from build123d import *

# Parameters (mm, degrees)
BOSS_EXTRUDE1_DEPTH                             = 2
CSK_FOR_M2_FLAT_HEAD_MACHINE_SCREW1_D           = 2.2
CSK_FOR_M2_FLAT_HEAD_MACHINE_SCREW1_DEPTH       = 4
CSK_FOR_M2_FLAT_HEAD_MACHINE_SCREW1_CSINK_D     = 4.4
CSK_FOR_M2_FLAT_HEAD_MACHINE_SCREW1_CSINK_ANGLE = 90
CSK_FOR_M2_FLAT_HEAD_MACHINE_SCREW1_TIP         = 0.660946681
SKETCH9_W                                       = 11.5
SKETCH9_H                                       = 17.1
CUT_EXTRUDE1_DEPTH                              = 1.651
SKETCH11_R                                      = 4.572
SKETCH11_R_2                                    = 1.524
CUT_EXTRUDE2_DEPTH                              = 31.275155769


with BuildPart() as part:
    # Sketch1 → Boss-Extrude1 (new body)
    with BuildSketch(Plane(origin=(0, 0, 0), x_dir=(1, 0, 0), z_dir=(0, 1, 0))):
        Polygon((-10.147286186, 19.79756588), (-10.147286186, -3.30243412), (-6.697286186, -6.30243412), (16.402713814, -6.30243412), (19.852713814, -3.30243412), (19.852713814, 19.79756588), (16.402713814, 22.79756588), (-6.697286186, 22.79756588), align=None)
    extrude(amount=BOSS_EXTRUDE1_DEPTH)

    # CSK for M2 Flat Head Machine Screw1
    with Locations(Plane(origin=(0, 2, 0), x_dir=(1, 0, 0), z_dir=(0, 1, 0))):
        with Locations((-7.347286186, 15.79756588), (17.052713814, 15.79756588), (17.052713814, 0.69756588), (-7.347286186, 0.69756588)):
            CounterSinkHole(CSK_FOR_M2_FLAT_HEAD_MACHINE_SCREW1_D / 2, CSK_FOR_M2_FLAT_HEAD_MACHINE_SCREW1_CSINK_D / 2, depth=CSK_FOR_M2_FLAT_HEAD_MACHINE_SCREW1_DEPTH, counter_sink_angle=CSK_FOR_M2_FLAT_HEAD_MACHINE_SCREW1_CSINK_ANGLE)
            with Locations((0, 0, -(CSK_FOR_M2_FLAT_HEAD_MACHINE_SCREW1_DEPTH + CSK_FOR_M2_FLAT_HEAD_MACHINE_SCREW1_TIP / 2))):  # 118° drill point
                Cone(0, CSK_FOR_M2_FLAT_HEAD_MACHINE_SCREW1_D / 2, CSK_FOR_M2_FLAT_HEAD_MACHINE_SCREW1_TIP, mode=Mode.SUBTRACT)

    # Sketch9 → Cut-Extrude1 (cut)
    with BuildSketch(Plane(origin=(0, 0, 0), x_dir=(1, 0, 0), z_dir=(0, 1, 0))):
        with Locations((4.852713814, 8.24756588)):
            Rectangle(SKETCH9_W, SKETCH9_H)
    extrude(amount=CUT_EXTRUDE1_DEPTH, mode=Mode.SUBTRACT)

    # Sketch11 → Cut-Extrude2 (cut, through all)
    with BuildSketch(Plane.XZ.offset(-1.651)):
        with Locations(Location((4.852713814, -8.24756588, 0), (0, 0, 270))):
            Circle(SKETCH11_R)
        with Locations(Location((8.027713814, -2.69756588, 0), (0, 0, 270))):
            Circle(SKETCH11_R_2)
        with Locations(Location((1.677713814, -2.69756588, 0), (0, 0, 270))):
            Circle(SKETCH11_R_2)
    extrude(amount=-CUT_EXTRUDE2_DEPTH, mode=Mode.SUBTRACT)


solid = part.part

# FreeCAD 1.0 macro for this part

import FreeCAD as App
import Part
import Sketcher
from FreeCAD import Vector

doc = App.newDocument("Part")
params = doc.addObject("Spreadsheet::Sheet", "Params")
for row, (alias, value) in enumerate([
    ("sketch1_width", "23.1 mm"),
    ("pad1_length", "2 mm"),
    ("sketch2_diameter", "2.2 mm"),
    ("hole_diameter", "2.2 mm"),
    ("hole_depth", "4 mm"),
    ("hole_csink_diameter", "4.4 mm"),
    ("sketch3_width", "11.5 mm"),
    ("sketch3_height", "17.1 mm"),
    ("pocket1_length", "1.651 mm"),
], start=1):
    params.set(f"A{row}", alias)
    params.set(f"B{row}", "=" + value)
    params.setAlias(f"B{row}", alias)

body = doc.addObject("PartDesign::Body", "Body")

sketch1 = body.newObject("Sketcher::SketchObject", "Sketch")
sketch1.AttachmentSupport = (doc.getObject("XZ_Plane"), [""])
sketch1.MapMode = "FlatFace"
sketch1.addGeometry(Part.LineSegment(Vector(-10.1, -19.8, 0), Vector(-10.1, 3.3, 0)), False)
sketch1.addGeometry(Part.LineSegment(Vector(-10.1, 3.3, 0), Vector(-6.7, 6.3, 0)), False)
sketch1.addGeometry(Part.LineSegment(Vector(-6.7, 6.3, 0), Vector(16.4, 6.3, 0)), False)
sketch1.addGeometry(Part.LineSegment(Vector(16.4, 6.3, 0), Vector(19.9, 3.3, 0)), False)
sketch1.addGeometry(Part.LineSegment(Vector(19.9, 3.3, 0), Vector(19.9, -19.8, 0)), False)
sketch1.addGeometry(Part.LineSegment(Vector(19.9, -19.8, 0), Vector(16.4, -22.8, 0)), False)
sketch1.addGeometry(Part.LineSegment(Vector(16.4, -22.8, 0), Vector(-6.7, -22.8, 0)), False)
sketch1.addGeometry(Part.LineSegment(Vector(-6.7, -22.8, 0), Vector(-10.1, -19.8, 0)), False)
sketch1.addConstraint(Sketcher.Constraint("Coincident", 0, 2, 1, 1))
sketch1.addConstraint(Sketcher.Constraint("Coincident", 1, 2, 2, 1))
sketch1.addConstraint(Sketcher.Constraint("Coincident", 2, 2, 3, 1))
sketch1.addConstraint(Sketcher.Constraint("Coincident", 3, 2, 4, 1))
sketch1.addConstraint(Sketcher.Constraint("Coincident", 4, 2, 5, 1))
sketch1.addConstraint(Sketcher.Constraint("Coincident", 5, 2, 6, 1))
sketch1.addConstraint(Sketcher.Constraint("Coincident", 6, 2, 7, 1))
sketch1.addConstraint(Sketcher.Constraint("Coincident", 7, 2, 0, 1))
sketch1.addConstraint(Sketcher.Constraint("Vertical", 0))
sketch1.addConstraint(Sketcher.Constraint("Horizontal", 2))
sketch1.addConstraint(Sketcher.Constraint("Vertical", 4))
sketch1.addConstraint(Sketcher.Constraint("Horizontal", 6))
sketch1.addConstraint(Sketcher.Constraint("Parallel", 1, 5))
sketch1.addConstraint(Sketcher.Constraint("Parallel", 3, 7))
sketch1.addConstraint(Sketcher.Constraint("Horizontal", 0, 2, 3, 2))
sketch1.addConstraint(Sketcher.Constraint("Horizontal", 4, 2, 7, 2))
sketch1.addConstraint(Sketcher.Constraint("Vertical", 2, 2, 5, 2))
sketch1.addConstraint(Sketcher.Constraint("Vertical", 1, 2, 6, 2))
sketch1.addConstraint(Sketcher.Constraint("Equal", 6, 0))
sketch1.addConstraint(Sketcher.Constraint("DistanceX", 2, 1, 2, 2, 23.1))
sketch1.addConstraint(Sketcher.Constraint("DistanceY", 0, 2, 1, 2, 3.0))
sketch1.addConstraint(Sketcher.Constraint("DistanceX", 0, 2, 3, 2, 30.0))
sketch1.addConstraint(Sketcher.Constraint("DistanceX", 0, 2, -1, 1, 10.147286))
sketch1.addConstraint(Sketcher.Constraint("DistanceY", -1, 1, 0, 2, 3.302434))
sketch1.setExpression("Constraints[19]", "Params.sketch1_width")
pad1 = body.newObject("PartDesign::Pad", "Pad")
pad1.Profile = sketch1
pad1.setExpression("Length", "Params.pad1_length")
pad1.Reversed = True

sketch2 = body.newObject("Sketcher::SketchObject", "Sketch001")
sketch2.AttachmentSupport = (doc.getObject("XZ_Plane"), [""])
sketch2.MapMode = "FlatFace"
sketch2.AttachmentOffset = App.Placement(Vector(0, 0, -2), App.Rotation())
sketch2.addGeometry(Part.Circle(Vector(-7.3, -15.8, 0), Vector(0, 0, 1), 1.1), False)
sketch2.addGeometry(Part.Circle(Vector(17.1, -15.8, 0), Vector(0, 0, 1), 1.1), False)
sketch2.addGeometry(Part.Circle(Vector(17.1, -0.7, 0), Vector(0, 0, 1), 1.1), False)
sketch2.addGeometry(Part.Circle(Vector(-7.3, -0.7, 0), Vector(0, 0, 1), 1.1), False)
sketch2.addConstraint(Sketcher.Constraint("Equal", 0, 1))
sketch2.addConstraint(Sketcher.Constraint("Equal", 1, 2))
sketch2.addConstraint(Sketcher.Constraint("Equal", 2, 3))
sketch2.addConstraint(Sketcher.Constraint("Horizontal", 0, 3, 1, 3))
sketch2.addConstraint(Sketcher.Constraint("Horizontal", 2, 3, 3, 3))
sketch2.addConstraint(Sketcher.Constraint("Vertical", 1, 3, 2, 3))
sketch2.addConstraint(Sketcher.Constraint("Vertical", 0, 3, 3, 3))
sketch2.addConstraint(Sketcher.Constraint("Diameter", 0, 2.2))
sketch2.addConstraint(Sketcher.Constraint("DistanceX", 0, 3, 1, 3, 24.4))
sketch2.addConstraint(Sketcher.Constraint("DistanceY", 1, 3, 2, 3, 15.1))
sketch2.addConstraint(Sketcher.Constraint("DistanceX", 0, 3, -1, 1, 7.347286))
sketch2.addConstraint(Sketcher.Constraint("DistanceY", 0, 3, -1, 1, 15.797566))
sketch2.setExpression("Constraints[7]", "Params.sketch2_diameter")
doc.recompute()
hole = body.newObject("PartDesign::Hole", "Hole")
hole.Profile = sketch2
hole.ThreadType = "None"
hole.setExpression("Diameter", "Params.hole_diameter")
hole.DepthType = "Dimension"
hole.setExpression("Depth", "Params.hole_depth")
hole.DrillPoint = "Angled"
hole.DrillPointAngle = 118
hole.HoleCutType = "Countersink"
hole.setExpression("HoleCutDiameter", "Params.hole_csink_diameter")
hole.HoleCutCountersinkAngle = 90
hole.Reversed = True

sketch3 = body.newObject("Sketcher::SketchObject", "Sketch002")
sketch3.AttachmentSupport = (doc.getObject("XZ_Plane"), [""])
sketch3.MapMode = "FlatFace"
sketch3.addGeometry(Part.LineSegment(Vector(-1, -17, 0), Vector(-1, 0, 0)), False)
sketch3.addGeometry(Part.LineSegment(Vector(-1, 0, 0), Vector(11, 0, 0)), False)
sketch3.addGeometry(Part.LineSegment(Vector(11, 0, 0), Vector(11, -17, 0)), False)
sketch3.addGeometry(Part.LineSegment(Vector(11, -17, 0), Vector(-1, -17, 0)), False)
sketch3.addConstraint(Sketcher.Constraint("Coincident", 0, 2, 1, 1))
sketch3.addConstraint(Sketcher.Constraint("Coincident", 1, 2, 2, 1))
sketch3.addConstraint(Sketcher.Constraint("Coincident", 2, 2, 3, 1))
sketch3.addConstraint(Sketcher.Constraint("Coincident", 3, 2, 0, 1))
sketch3.addConstraint(Sketcher.Constraint("Vertical", 0))
sketch3.addConstraint(Sketcher.Constraint("Horizontal", 1))
sketch3.addConstraint(Sketcher.Constraint("Vertical", 2))
sketch3.addConstraint(Sketcher.Constraint("Horizontal", 3))
sketch3.addConstraint(Sketcher.Constraint("DistanceX", 1, 1, 1, 2, 11.5))
sketch3.addConstraint(Sketcher.Constraint("DistanceY", 0, 1, 0, 2, 17.1))
sketch3.addConstraint(Sketcher.Constraint("DistanceX", 0, 2, -1, 1, 0.897286))
sketch3.addConstraint(Sketcher.Constraint("DistanceY", -1, 1, 0, 2, 0.302434))
sketch3.setExpression("Constraints[8]", "Params.sketch3_width")
sketch3.setExpression("Constraints[9]", "Params.sketch3_height")
pocket1 = body.newObject("PartDesign::Pocket", "Pocket")
pocket1.Profile = sketch3
pocket1.setExpression("Length", "Params.pocket1_length")

sketch4 = body.newObject("Sketcher::SketchObject", "Sketch003")
sketch4.AttachmentSupport = (doc.getObject("XZ_Plane"), [""])
sketch4.MapMode = "FlatFace"
sketch4.AttachmentOffset = App.Placement(Vector(0, 0, -1.651), App.Rotation())
sketch4.addGeometry(Part.Circle(Vector(4.9, -8.2, 0), Vector(0, 0, 1), 4.6), False)
sketch4.addGeometry(Part.Circle(Vector(8, -2.7, 0), Vector(0, 0, 1), 1.5), False)
sketch4.addGeometry(Part.Circle(Vector(1.7, -2.7, 0), Vector(0, 0, 1), 1.5), False)
sketch4.addConstraint(Sketcher.Constraint("Equal", 1, 2))
sketch4.addConstraint(Sketcher.Constraint("Horizontal", 1, 3, 2, 3))
sketch4.addConstraint(Sketcher.Constraint("Diameter", 0, 9.144))
sketch4.addConstraint(Sketcher.Constraint("Diameter", 1, 3.048))
sketch4.addConstraint(Sketcher.Constraint("DistanceY", 0, 3, 1, 3, 5.55))
sketch4.addConstraint(Sketcher.Constraint("DistanceX", 2, 3, 1, 3, 6.35))
sketch4.addConstraint(Sketcher.Constraint("DistanceX", 0, 3, 1, 3, 3.175))
sketch4.addConstraint(Sketcher.Constraint("DistanceX", -1, 1, 0, 3, 4.852714))
sketch4.addConstraint(Sketcher.Constraint("DistanceY", 0, 3, -1, 1, 8.247566))
pocket2 = body.newObject("PartDesign::Pocket", "Pocket001")
pocket2.Profile = sketch4
pocket2.Type = "ThroughAll"

doc.recompute()
